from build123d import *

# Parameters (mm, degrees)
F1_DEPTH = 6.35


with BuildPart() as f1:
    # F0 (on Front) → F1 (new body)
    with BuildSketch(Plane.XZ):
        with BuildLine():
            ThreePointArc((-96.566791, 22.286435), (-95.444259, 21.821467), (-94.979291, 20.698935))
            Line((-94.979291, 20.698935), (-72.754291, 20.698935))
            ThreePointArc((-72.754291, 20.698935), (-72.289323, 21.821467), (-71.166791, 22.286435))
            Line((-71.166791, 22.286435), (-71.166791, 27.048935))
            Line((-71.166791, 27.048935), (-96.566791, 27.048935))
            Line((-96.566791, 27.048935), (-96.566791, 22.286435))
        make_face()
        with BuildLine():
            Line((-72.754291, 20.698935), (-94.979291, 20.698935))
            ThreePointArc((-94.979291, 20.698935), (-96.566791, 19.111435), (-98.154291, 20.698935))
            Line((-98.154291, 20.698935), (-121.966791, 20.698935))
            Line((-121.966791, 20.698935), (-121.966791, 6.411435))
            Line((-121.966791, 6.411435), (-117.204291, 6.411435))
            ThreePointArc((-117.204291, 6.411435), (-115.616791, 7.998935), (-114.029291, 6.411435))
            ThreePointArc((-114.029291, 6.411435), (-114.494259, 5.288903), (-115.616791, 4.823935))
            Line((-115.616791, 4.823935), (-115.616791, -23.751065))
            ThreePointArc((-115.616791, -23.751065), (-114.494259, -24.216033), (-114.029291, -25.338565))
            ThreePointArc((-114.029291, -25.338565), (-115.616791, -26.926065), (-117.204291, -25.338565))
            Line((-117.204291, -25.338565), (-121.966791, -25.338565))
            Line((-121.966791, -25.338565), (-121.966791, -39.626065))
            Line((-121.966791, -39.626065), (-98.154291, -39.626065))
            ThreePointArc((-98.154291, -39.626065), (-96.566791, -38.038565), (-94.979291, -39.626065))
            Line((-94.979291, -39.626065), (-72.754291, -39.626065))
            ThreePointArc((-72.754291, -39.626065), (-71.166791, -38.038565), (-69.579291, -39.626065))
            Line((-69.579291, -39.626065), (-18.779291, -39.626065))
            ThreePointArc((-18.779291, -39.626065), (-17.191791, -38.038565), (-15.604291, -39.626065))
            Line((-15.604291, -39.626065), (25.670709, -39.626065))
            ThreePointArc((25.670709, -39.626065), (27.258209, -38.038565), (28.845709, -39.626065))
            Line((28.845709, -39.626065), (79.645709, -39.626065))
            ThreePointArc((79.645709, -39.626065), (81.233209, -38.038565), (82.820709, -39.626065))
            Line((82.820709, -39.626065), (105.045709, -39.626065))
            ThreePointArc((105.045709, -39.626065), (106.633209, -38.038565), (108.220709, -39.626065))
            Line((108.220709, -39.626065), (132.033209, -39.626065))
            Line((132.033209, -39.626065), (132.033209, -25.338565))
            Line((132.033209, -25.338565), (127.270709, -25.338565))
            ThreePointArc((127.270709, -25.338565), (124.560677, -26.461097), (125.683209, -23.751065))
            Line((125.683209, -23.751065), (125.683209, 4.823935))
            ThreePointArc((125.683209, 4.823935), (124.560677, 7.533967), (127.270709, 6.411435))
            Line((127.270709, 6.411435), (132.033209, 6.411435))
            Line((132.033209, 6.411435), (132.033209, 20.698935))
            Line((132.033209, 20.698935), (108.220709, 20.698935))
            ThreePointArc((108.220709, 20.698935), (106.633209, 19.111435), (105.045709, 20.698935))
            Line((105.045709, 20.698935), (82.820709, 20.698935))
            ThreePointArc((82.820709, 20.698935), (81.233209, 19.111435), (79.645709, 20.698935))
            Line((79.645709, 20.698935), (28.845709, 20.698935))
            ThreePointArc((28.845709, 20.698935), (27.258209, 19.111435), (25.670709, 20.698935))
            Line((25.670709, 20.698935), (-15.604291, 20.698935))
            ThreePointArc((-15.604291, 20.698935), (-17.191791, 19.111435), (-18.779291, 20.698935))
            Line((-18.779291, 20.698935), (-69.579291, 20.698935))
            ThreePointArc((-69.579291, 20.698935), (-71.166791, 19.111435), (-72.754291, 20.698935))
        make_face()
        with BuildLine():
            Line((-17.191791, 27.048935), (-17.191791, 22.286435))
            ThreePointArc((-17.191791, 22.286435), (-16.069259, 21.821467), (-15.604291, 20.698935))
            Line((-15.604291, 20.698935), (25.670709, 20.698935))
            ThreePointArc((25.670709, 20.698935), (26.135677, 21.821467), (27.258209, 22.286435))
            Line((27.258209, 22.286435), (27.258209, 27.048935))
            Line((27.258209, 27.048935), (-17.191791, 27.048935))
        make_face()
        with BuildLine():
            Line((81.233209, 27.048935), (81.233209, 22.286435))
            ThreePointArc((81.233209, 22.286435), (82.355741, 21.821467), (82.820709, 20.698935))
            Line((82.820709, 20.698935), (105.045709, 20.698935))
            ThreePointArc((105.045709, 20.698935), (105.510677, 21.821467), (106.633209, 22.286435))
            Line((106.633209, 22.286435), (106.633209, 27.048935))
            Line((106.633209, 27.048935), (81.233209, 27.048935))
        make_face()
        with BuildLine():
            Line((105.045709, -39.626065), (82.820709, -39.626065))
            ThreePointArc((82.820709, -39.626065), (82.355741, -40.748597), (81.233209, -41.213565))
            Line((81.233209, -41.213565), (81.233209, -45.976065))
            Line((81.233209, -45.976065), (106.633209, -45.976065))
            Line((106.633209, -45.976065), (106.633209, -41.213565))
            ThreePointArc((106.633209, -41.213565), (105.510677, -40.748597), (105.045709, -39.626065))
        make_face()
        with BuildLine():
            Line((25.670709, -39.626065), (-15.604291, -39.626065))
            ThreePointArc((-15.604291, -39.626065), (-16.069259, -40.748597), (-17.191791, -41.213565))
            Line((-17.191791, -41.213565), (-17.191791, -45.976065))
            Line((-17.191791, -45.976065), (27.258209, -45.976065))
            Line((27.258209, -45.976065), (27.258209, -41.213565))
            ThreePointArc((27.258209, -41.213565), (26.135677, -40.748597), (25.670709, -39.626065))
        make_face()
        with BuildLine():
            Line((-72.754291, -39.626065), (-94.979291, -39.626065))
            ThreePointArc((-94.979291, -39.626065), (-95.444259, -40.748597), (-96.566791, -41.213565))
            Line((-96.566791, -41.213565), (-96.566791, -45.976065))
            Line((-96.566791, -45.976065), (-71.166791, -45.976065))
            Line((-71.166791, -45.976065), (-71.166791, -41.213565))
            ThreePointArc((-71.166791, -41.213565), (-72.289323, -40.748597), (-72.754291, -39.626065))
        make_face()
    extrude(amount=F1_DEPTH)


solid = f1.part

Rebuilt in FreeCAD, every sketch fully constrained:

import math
import FreeCAD as App
import Part
import Sketcher
from FreeCAD import Vector
Q = App.Units.Quantity

doc = App.newDocument("Part")
body = doc.addObject("PartDesign::Body", "Body")

# Sketch on XZ plane
sketch1 = body.newObject("Sketcher::SketchObject", "Sketch")
sketch1.AttachmentSupport = (doc.getObject("XZ_Plane"), [""])
sketch1.MapMode = "FlatFace"
sketch1.addGeometry([
    Part.ArcOfCircle(Part.Circle(Vector(-96.566791, 20.698935, 0), Vector(0, 0, 1), 1.5875), math.radians(0.000002), math.radians(89.999998)),  # 0
    Part.ArcOfCircle(Part.Circle(Vector(-96.566791, 20.698935, 0), Vector(0, 0, 1), 1.5875), math.radians(180), math.radians(360)),  # 1
    Part.LineSegment(Vector(-98.154291, 20.698935, 0), Vector(-121.966791, 20.698935, 0)),  # 2
    Part.LineSegment(Vector(-121.966791, 20.698935, 0), Vector(-121.966791, 6.411435, 0)),  # 3
    Part.LineSegment(Vector(-121.966791, 6.411435, 0), Vector(-117.204291, 6.411435, 0)),  # 4
    Part.ArcOfCircle(Part.Circle(Vector(-115.616791, 6.411435, 0), Vector(0, 0, 1), 1.5875), math.radians(0), math.radians(180)),  # 5
    Part.ArcOfCircle(Part.Circle(Vector(-115.616791, 6.411435, 0), Vector(0, 0, 1), 1.5875), math.radians(-89.999998), math.radians(-0.000002)),  # 6
    Part.LineSegment(Vector(-115.616791, 4.823935, 0), Vector(-115.616791, -23.751065, 0)),  # 7
    Part.ArcOfCircle(Part.Circle(Vector(-115.616791, -25.338565, 0), Vector(0, 0, 1), 1.5875), math.radians(0.000002), math.radians(89.999998)),  # 8
    Part.ArcOfCircle(Part.Circle(Vector(-115.616791, -25.338565, 0), Vector(0, 0, 1), 1.5875), math.radians(180), math.radians(360)),  # 9
    Part.LineSegment(Vector(-117.204291, -25.338565, 0), Vector(-121.966791, -25.338565, 0)),  # 10
    Part.LineSegment(Vector(-121.966791, -25.338565, 0), Vector(-121.966791, -39.626065, 0)),  # 11
    Part.LineSegment(Vector(-121.966791, -39.626065, 0), Vector(-98.154291, -39.626065, 0)),  # 12
    Part.ArcOfCircle(Part.Circle(Vector(-96.566791, -39.626065, 0), Vector(0, 0, 1), 1.5875), math.radians(0), math.radians(180)),  # 13
    Part.ArcOfCircle(Part.Circle(Vector(-96.566791, -39.626065, 0), Vector(0, 0, 1), 1.5875), math.radians(-89.999998), math.radians(-0.000002)),  # 14
    Part.LineSegment(Vector(-96.566791, -41.213565, 0), Vector(-96.566791, -45.976065, 0)),  # 15
    Part.LineSegment(Vector(-96.566791, -45.976065, 0), Vector(-71.166791, -45.976065, 0)),  # 16
    Part.LineSegment(Vector(-71.166791, -45.976065, 0), Vector(-71.166791, -41.213565, 0)),  # 17
    Part.ArcOfCircle(Part.Circle(Vector(-71.166791, -39.626065, 0), Vector(0, 0, 1), 1.5875), math.radians(-179.999998), math.radians(-90.000002)),  # 18
    Part.ArcOfCircle(Part.Circle(Vector(-71.166791, -39.626065, 0), Vector(0, 0, 1), 1.5875), math.radians(0), math.radians(180)),  # 19
    Part.LineSegment(Vector(-69.579291, -39.626065, 0), Vector(-18.779291, -39.626065, 0)),  # 20
    Part.ArcOfCircle(Part.Circle(Vector(-17.191791, -39.626065, 0), Vector(0, 0, 1), 1.5875), math.radians(0), math.radians(180)),  # 21
    Part.ArcOfCircle(Part.Circle(Vector(-17.191791, -39.626065, 0), Vector(0, 0, 1), 1.5875), math.radians(-89.999998), math.radians(-0.000002)),  # 22
    Part.LineSegment(Vector(-17.191791, -41.213565, 0), Vector(-17.191791, -45.976065, 0)),  # 23
    Part.LineSegment(Vector(-17.191791, -45.976065, 0), Vector(27.258209, -45.976065, 0)),  # 24
    Part.LineSegment(Vector(27.258209, -45.976065, 0), Vector(27.258209, -41.213565, 0)),  # 25
    Part.ArcOfCircle(Part.Circle(Vector(27.258209, -39.626065, 0), Vector(0, 0, 1), 1.5875), math.radians(-179.999998), math.radians(-90.000002)),  # 26
    Part.ArcOfCircle(Part.Circle(Vector(27.258209, -39.626065, 0), Vector(0, 0, 1), 1.5875), math.radians(0), math.radians(180)),  # 27
    Part.LineSegment(Vector(28.845709, -39.626065, 0), Vector(79.645709, -39.626065, 0)),  # 28
    Part.ArcOfCircle(Part.Circle(Vector(81.233209, -39.626065, 0), Vector(0, 0, 1), 1.5875), math.radians(0), math.radians(180)),  # 29
    Part.ArcOfCircle(Part.Circle(Vector(81.233209, -39.626065, 0), Vector(0, 0, 1), 1.5875), math.radians(-89.999998), math.radians(-0.000002)),  # 30
    Part.LineSegment(Vector(81.233209, -41.213565, 0), Vector(81.233209, -45.976065, 0)),  # 31
    Part.LineSegment(Vector(81.233209, -45.976065, 0), Vector(106.633209, -45.976065, 0)),  # 32
    Part.LineSegment(Vector(106.633209, -45.976065, 0), Vector(106.633209, -41.213565, 0)),  # 33
    Part.ArcOfCircle(Part.Circle(Vector(106.633209, -39.626065, 0), Vector(0, 0, 1), 1.5875), math.radians(-179.999998), math.radians(-90.000002)),  # 34
    Part.ArcOfCircle(Part.Circle(Vector(106.633209, -39.626065, 0), Vector(0, 0, 1), 1.5875), math.radians(0), math.radians(180)),  # 35
    Part.LineSegment(Vector(108.220709, -39.626065, 0), Vector(132.033209, -39.626065, 0)),  # 36
    Part.LineSegment(Vector(132.033209, -39.626065, 0), Vector(132.033209, -25.338565, 0)),  # 37
    Part.LineSegment(Vector(132.033209, -25.338565, 0), Vector(127.270709, -25.338565, 0)),  # 38
    Part.ArcOfCircle(Part.Circle(Vector(125.683209, -25.338565, 0), Vector(0, 0, 1), 1.5875), math.radians(90), math.radians(360)),  # 39
    Part.LineSegment(Vector(125.683209, -23.751065, 0), Vector(125.683209, 4.823935, 0)),  # 40
    Part.ArcOfCircle(Part.Circle(Vector(125.683209, 6.411435, 0), Vector(0, 0, 1), 1.5875), math.radians(0), math.radians(270)),  # 41
    Part.LineSegment(Vector(127.270709, 6.411435, 0), Vector(132.033209, 6.411435, 0)),  # 42
    Part.LineSegment(Vector(132.033209, 6.411435, 0), Vector(132.033209, 20.698935, 0)),  # 43
    Part.LineSegment(Vector(132.033209, 20.698935, 0), Vector(108.220709, 20.698935, 0)),  # 44
    Part.ArcOfCircle(Part.Circle(Vector(106.633209, 20.698935, 0), Vector(0, 0, 1), 1.5875), math.radians(180), math.radians(360)),  # 45
    Part.ArcOfCircle(Part.Circle(Vector(106.633209, 20.698935, 0), Vector(0, 0, 1), 1.5875), math.radians(90.000002), math.radians(179.999998)),  # 46
    Part.LineSegment(Vector(106.633209, 22.286435, 0), Vector(106.633209, 27.048935, 0)),  # 47
    Part.LineSegment(Vector(106.633209, 27.048935, 0), Vector(81.233209, 27.048935, 0)),  # 48
    Part.LineSegment(Vector(81.233209, 27.048935, 0), Vector(81.233209, 22.286435, 0)),  # 49
    Part.ArcOfCircle(Part.Circle(Vector(81.233209, 20.698935, 0), Vector(0, 0, 1), 1.5875), math.radians(0.000002), math.radians(89.999998)),  # 50
    Part.ArcOfCircle(Part.Circle(Vector(81.233209, 20.698935, 0), Vector(0, 0, 1), 1.5875), math.radians(180), math.radians(360)),  # 51
    Part.LineSegment(Vector(79.645709, 20.698935, 0), Vector(28.845709, 20.698935, 0)),  # 52
    Part.ArcOfCircle(Part.Circle(Vector(27.258209, 20.698935, 0), Vector(0, 0, 1), 1.5875), math.radians(180), math.radians(360)),  # 53
    Part.ArcOfCircle(Part.Circle(Vector(27.258209, 20.698935, 0), Vector(0, 0, 1), 1.5875), math.radians(90.000002), math.radians(179.999998)),  # 54
    Part.LineSegment(Vector(27.258209, 22.286435, 0), Vector(27.258209, 27.048935, 0)),  # 55
    Part.LineSegment(Vector(27.258209, 27.048935, 0), Vector(-17.191791, 27.048935, 0)),  # 56
    Part.LineSegment(Vector(-17.191791, 27.048935, 0), Vector(-17.191791, 22.286435, 0)),  # 57
    Part.ArcOfCircle(Part.Circle(Vector(-17.191791, 20.698935, 0), Vector(0, 0, 1), 1.5875), math.radians(0.000002), math.radians(89.999998)),  # 58
    Part.ArcOfCircle(Part.Circle(Vector(-17.191791, 20.698935, 0), Vector(0, 0, 1), 1.5875), math.radians(180), math.radians(360)),  # 59
    Part.LineSegment(Vector(-18.779291, 20.698935, 0), Vector(-69.579291, 20.698935, 0)),  # 60
    Part.ArcOfCircle(Part.Circle(Vector(-71.166791, 20.698935, 0), Vector(0, 0, 1), 1.5875), math.radians(180), math.radians(360)),  # 61
    Part.ArcOfCircle(Part.Circle(Vector(-71.166791, 20.698935, 0), Vector(0, 0, 1), 1.5875), math.radians(90.000002), math.radians(179.999998)),  # 62
    Part.LineSegment(Vector(-71.166791, 22.286435, 0), Vector(-71.166791, 27.048935, 0)),  # 63
    Part.LineSegment(Vector(-71.166791, 27.048935, 0), Vector(-96.566791, 27.048935, 0)),  # 64
    Part.LineSegment(Vector(-96.566791, 27.048935, 0), Vector(-96.566791, 22.286435, 0)),  # 65
], False)
sketch1.addConstraint([
    Sketcher.Constraint("Tangent", 0, 1, 1, 2),
    Sketcher.Constraint("Coincident", 1, 1, 2, 1),
    Sketcher.Constraint("Coincident", 2, 2, 3, 1),
    Sketcher.Constraint("Coincident", 3, 2, 4, 1),
    Sketcher.Constraint("Coincident", 4, 2, 5, 2),
    Sketcher.Constraint("Tangent", 5, 1, 6, 2),
    Sketcher.Constraint("Coincident", 6, 1, 7, 1),
    Sketcher.Constraint("Coincident", 7, 2, 8, 2),
    Sketcher.Constraint("Tangent", 8, 1, 9, 2),
    Sketcher.Constraint("Coincident", 9, 1, 10, 1),
    Sketcher.Constraint("Coincident", 10, 2, 11, 1),
    Sketcher.Constraint("Coincident", 11, 2, 12, 1),
    Sketcher.Constraint("Coincident", 12, 2, 13, 2),
    Sketcher.Constraint("Tangent", 13, 1, 14, 2),
    Sketcher.Constraint("Coincident", 14, 1, 15, 1),
    Sketcher.Constraint("Coincident", 15, 2, 16, 1),
    Sketcher.Constraint("Coincident", 16, 2, 17, 1),
    Sketcher.Constraint("Coincident", 17, 2, 18, 2),
    Sketcher.Constraint("Tangent", 18, 1, 19, 2),
    Sketcher.Constraint("Coincident", 19, 1, 20, 1),
    Sketcher.Constraint("Coincident", 20, 2, 21, 2),
    Sketcher.Constraint("Tangent", 21, 1, 22, 2),
    Sketcher.Constraint("Coincident", 22, 1, 23, 1),
    Sketcher.Constraint("Coincident", 23, 2, 24, 1),
    Sketcher.Constraint("Coincident", 24, 2, 25, 1),
    Sketcher.Constraint("Coincident", 25, 2, 26, 2),
    Sketcher.Constraint("Tangent", 26, 1, 27, 2),
    Sketcher.Constraint("Coincident", 27, 1, 28, 1),
    Sketcher.Constraint("Coincident", 28, 2, 29, 2),
    Sketcher.Constraint("Tangent", 29, 1, 30, 2),
    Sketcher.Constraint("Coincident", 30, 1, 31, 1),
    Sketcher.Constraint("Coincident", 31, 2, 32, 1),
    Sketcher.Constraint("Coincident", 32, 2, 33, 1),
    Sketcher.Constraint("Coincident", 33, 2, 34, 2),
    Sketcher.Constraint("Tangent", 34, 1, 35, 2),
    Sketcher.Constraint("Coincident", 35, 1, 36, 1),
    Sketcher.Constraint("Coincident", 36, 2, 37, 1),
    Sketcher.Constraint("Coincident", 37, 2, 38, 1),
    Sketcher.Constraint("Coincident", 38, 2, 39, 2),
    Sketcher.Constraint("Coincident", 39, 1, 40, 1),
    Sketcher.Constraint("Coincident", 40, 2, 41, 2),
    Sketcher.Constraint("Coincident", 41, 1, 42, 1),
    Sketcher.Constraint("Coincident", 42, 2, 43, 1),
    Sketcher.Constraint("Coincident", 43, 2, 44, 1),
    Sketcher.Constraint("Coincident", 44, 2, 45, 2),
    Sketcher.Constraint("Tangent", 45, 1, 46, 2),
    Sketcher.Constraint("Coincident", 46, 1, 47, 1),
    Sketcher.Constraint("Coincident", 47, 2, 48, 1),
    Sketcher.Constraint("Coincident", 48, 2, 49, 1),
    Sketcher.Constraint("Coincident", 49, 2, 50, 2),
    Sketcher.Constraint("Tangent", 50, 1, 51, 2),
    Sketcher.Constraint("Coincident", 51, 1, 52, 1),
    Sketcher.Constraint("Coincident", 52, 2, 53, 2),
    Sketcher.Constraint("Tangent", 53, 1, 54, 2),
    Sketcher.Constraint("Coincident", 54, 1, 55, 1),
    Sketcher.Constraint("Coincident", 55, 2, 56, 1),
    Sketcher.Constraint("Coincident", 56, 2, 57, 1),
    Sketcher.Constraint("Coincident", 57, 2, 58, 2),
    Sketcher.Constraint("Tangent", 58, 1, 59, 2),
    Sketcher.Constraint("Coincident", 59, 1, 60, 1),
    Sketcher.Constraint("Coincident", 60, 2, 61, 2),
    Sketcher.Constraint("Tangent", 61, 1, 62, 2),
    Sketcher.Constraint("Coincident", 62, 1, 63, 1),
    Sketcher.Constraint("Coincident", 63, 2, 64, 1),
    Sketcher.Constraint("Coincident", 64, 2, 65, 1),
    Sketcher.Constraint("Coincident", 65, 2, 0, 2),
    Sketcher.Constraint("Horizontal", 2),
    Sketcher.Constraint("Vertical", 3),
    Sketcher.Constraint("Horizontal", 4),
    Sketcher.Constraint("Vertical", 7),
    Sketcher.Constraint("Horizontal", 10),
    Sketcher.Constraint("Vertical", 11),
    Sketcher.Constraint("Horizontal", 12),
    Sketcher.Constraint("Vertical", 15),
    Sketcher.Constraint("Horizontal", 16),
    Sketcher.Constraint("Vertical", 17),
    Sketcher.Constraint("Horizontal", 20),
    Sketcher.Constraint("Vertical", 23),
    Sketcher.Constraint("Horizontal", 24),
    Sketcher.Constraint("Vertical", 25),
    Sketcher.Constraint("Horizontal", 28),
    Sketcher.Constraint("Vertical", 31),
    Sketcher.Constraint("Horizontal", 32),
    Sketcher.Constraint("Vertical", 33),
    Sketcher.Constraint("Horizontal", 36),
    Sketcher.Constraint("Vertical", 37),
    Sketcher.Constraint("Horizontal", 38),
    Sketcher.Constraint("Vertical", 40),
    Sketcher.Constraint("Horizontal", 42),
    Sketcher.Constraint("Vertical", 43),
    Sketcher.Constraint("Horizontal", 44),
    Sketcher.Constraint("Vertical", 47),
    Sketcher.Constraint("Horizontal", 48),
    Sketcher.Constraint("Vertical", 49),
    Sketcher.Constraint("Horizontal", 52),
    Sketcher.Constraint("Vertical", 55),
    Sketcher.Constraint("Horizontal", 56),
    Sketcher.Constraint("Vertical", 57),
    Sketcher.Constraint("Horizontal", 60),
    Sketcher.Constraint("Vertical", 63),
    Sketcher.Constraint("Horizontal", 64),
    Sketcher.Constraint("Vertical", 65),
    Sketcher.Constraint("Equal", 0, 1),
    Sketcher.Constraint("Equal", 1, 5),
    Sketcher.Constraint("Equal", 5, 6),
    Sketcher.Constraint("Equal", 6, 8),
    Sketcher.Constraint("Equal", 8, 9),
    Sketcher.Constraint("Equal", 9, 13),
    Sketcher.Constraint("Equal", 13, 14),
    Sketcher.Constraint("Equal", 14, 18),
    Sketcher.Constraint("Equal", 18, 19),
    Sketcher.Constraint("Equal", 19, 21),
    Sketcher.Constraint("Equal", 21, 22),
    Sketcher.Constraint("Equal", 22, 26),
    Sketcher.Constraint("Equal", 26, 27),
    Sketcher.Constraint("Equal", 27, 29),
    Sketcher.Constraint("Equal", 29, 30),
    Sketcher.Constraint("Equal", 30, 34),
    Sketcher.Constraint("Equal", 34, 35),
    Sketcher.Constraint("Equal", 35, 39),
    Sketcher.Constraint("Equal", 39, 41),
    Sketcher.Constraint("Equal", 41, 45),
    Sketcher.Constraint("Equal", 45, 46),
    Sketcher.Constraint("Equal", 46, 50),
    Sketcher.Constraint("Equal", 50, 51),
    Sketcher.Constraint("Equal", 51, 53),
    Sketcher.Constraint("Equal", 53, 54),
    Sketcher.Constraint("Equal", 54, 58),
    Sketcher.Constraint("Equal", 58, 59),
    Sketcher.Constraint("Equal", 59, 61),
    Sketcher.Constraint("Equal", 61, 62),
    Sketcher.Constraint("Horizontal", 14, 3, 18, 3),
    Sketcher.Constraint("Horizontal", 19, 3, 21, 3),
    Sketcher.Constraint("Horizontal", 22, 3, 26, 3),
    Sketcher.Constraint("Horizontal", 27, 3, 29, 3),
    Sketcher.Constraint("Horizontal", 30, 3, 34, 3),
    Sketcher.Constraint("Horizontal", 9, 3, 39, 3),
    Sketcher.Constraint("Horizontal", 6, 3, 41, 3),
    Sketcher.Constraint("Horizontal", 1, 3, 45, 3),
    Sketcher.Constraint("Horizontal", 46, 3, 50, 3),
    Sketcher.Constraint("Horizontal", 51, 3, 53, 3),
    Sketcher.Constraint("Horizontal", 54, 3, 58, 3),
    Sketcher.Constraint("Horizontal", 59, 3, 61, 3),
    Sketcher.Constraint("Horizontal", 62, 3, 0, 1),
    Sketcher.Constraint("Horizontal", 0, 1, 1, 1),
    Sketcher.Constraint("Horizontal", 41, 3, 3, 2),
    Sketcher.Constraint("Horizontal", 4, 2, 5, 1),
    Sketcher.Constraint("Horizontal", 39, 3, 8, 1),
    Sketcher.Constraint("Horizontal", 8, 1, 9, 1),
    Sketcher.Constraint("Horizontal", 35, 3, 11, 2),
    Sketcher.Constraint("Horizontal", 12, 2, 13, 1),
    Sketcher.Constraint("Horizontal", 13, 1, 18, 1),
    Sketcher.Constraint("Horizontal", 18, 1, 19, 1),
    Sketcher.Constraint("Horizontal", 20, 2, 21, 1),
    Sketcher.Constraint("Horizontal", 16, 2, 23, 2),
    Sketcher.Constraint("Horizontal", 21, 1, 26, 1),
    Sketcher.Constraint("Horizontal", 26, 1, 27, 1),
    Sketcher.Constraint("Horizontal", 28, 2, 29, 1),
    Sketcher.Constraint("Horizontal", 24, 2, 31, 2),
    Sketcher.Constraint("Horizontal", 29, 1, 34, 1),
    Sketcher.Constraint("Horizontal", 34, 1, 35, 1),
    Sketcher.Constraint("Horizontal", 10, 2, 37, 2),
    Sketcher.Constraint("Horizontal", 5, 1, 41, 1),
    Sketcher.Constraint("Horizontal", 2, 2, 43, 2),
    Sketcher.Constraint("Horizontal", 44, 2, 45, 1),
    Sketcher.Constraint("Horizontal", 45, 1, 50, 1),
    Sketcher.Constraint("Horizontal", 50, 1, 51, 1),
    Sketcher.Constraint("Horizontal", 52, 2, 53, 1),
    Sketcher.Constraint("Horizontal", 48, 2, 55, 2),
    Sketcher.Constraint("Horizontal", 53, 1, 58, 1),
    Sketcher.Constraint("Horizontal", 58, 1, 59, 1),
    Sketcher.Constraint("Horizontal", 60, 2, 61, 1),
    Sketcher.Constraint("Horizontal", 56, 2, 63, 2),
    Sketcher.Constraint("Vertical", 6, 3, 8, 3),
    Sketcher.Constraint("Vertical", 1, 3, 13, 3),
    Sketcher.Constraint("Vertical", 39, 3, 41, 3),
    Sketcher.Constraint("Vertical", 35, 3, 45, 3),
    Sketcher.Constraint("Vertical", 30, 3, 50, 3),
    Sketcher.Constraint("Vertical", 27, 3, 53, 3),
    Sketcher.Constraint("Vertical", 22, 3, 58, 3),
    Sketcher.Constraint("Vertical", 19, 3, 61, 3),
    Sketcher.Constraint("Vertical", 9, 3, 6, 1),
    Sketcher.Constraint("Vertical", 3, 2, 10, 2),
    Sketcher.Constraint("Vertical", 13, 3, 14, 1),
    Sketcher.Constraint("Vertical", 62, 3, 16, 2),
    Sketcher.Constraint("Vertical", 59, 3, 22, 1),
    Sketcher.Constraint("Vertical", 54, 3, 24, 2),
    Sketcher.Constraint("Vertical", 51, 3, 30, 1),
    Sketcher.Constraint("Vertical", 46, 3, 32, 2),
    Sketcher.Constraint("Vertical", 41, 3, 39, 1),
    Sketcher.Constraint("Vertical", 37, 2, 42, 2),
    Sketcher.Constraint("Vertical", 33, 2, 46, 1),
    Sketcher.Constraint("Vertical", 31, 2, 48, 2),
    Sketcher.Constraint("Vertical", 25, 2, 54, 1),
    Sketcher.Constraint("Vertical", 23, 2, 56, 2),
    Sketcher.Constraint("Vertical", 17, 2, 62, 1),
    Sketcher.Constraint("Vertical", 15, 2, 64, 2),
    Sketcher.Constraint("Equal", 20, 28),
    Sketcher.Constraint("Equal", 16, 32),
    Sketcher.Constraint("Equal", 12, 36),
    Sketcher.Constraint("Equal", 10, 38),
    Sketcher.Constraint("Equal", 3, 11),
    Sketcher.Constraint("Equal", 42, 15),
    Sketcher.Constraint("Equal", 33, 47),
    Sketcher.Constraint("DistanceX", 16, 1, 16, 2, Q("1 in")),
    Sketcher.Constraint("DistanceX", 20, 1, 20, 2, Q("2 in")),
    Sketcher.Constraint("Radius", 0, Q("0.0625 in")),
    Sketcher.Constraint("DistanceX", 24, 1, 24, 2, Q("1.75 in")),
    Sketcher.Constraint("DistanceX", 2, 2, 2, 1, Q("0.9375 in")),
    Sketcher.Constraint("DistanceX", 4, 1, 4, 2, Q("0.1875 in")),
    Sketcher.Constraint("DistanceY", 3, 2, 3, 1, Q("0.5625 in")),
    Sketcher.Constraint("DistanceY", 7, 2, 7, 1, Q("1.125 in")),
    Sketcher.Constraint("DistanceX", 0, 3, -1, 1, Q("96.566791 mm")),
    Sketcher.Constraint("DistanceY", -1, 1, 0, 3, Q("20.698935 mm")),
])
pad1 = body.newObject("PartDesign::Pad", "Pad")
pad1.Profile = sketch1
pad1.Length = Q("0.25 in")

doc.recompute()
